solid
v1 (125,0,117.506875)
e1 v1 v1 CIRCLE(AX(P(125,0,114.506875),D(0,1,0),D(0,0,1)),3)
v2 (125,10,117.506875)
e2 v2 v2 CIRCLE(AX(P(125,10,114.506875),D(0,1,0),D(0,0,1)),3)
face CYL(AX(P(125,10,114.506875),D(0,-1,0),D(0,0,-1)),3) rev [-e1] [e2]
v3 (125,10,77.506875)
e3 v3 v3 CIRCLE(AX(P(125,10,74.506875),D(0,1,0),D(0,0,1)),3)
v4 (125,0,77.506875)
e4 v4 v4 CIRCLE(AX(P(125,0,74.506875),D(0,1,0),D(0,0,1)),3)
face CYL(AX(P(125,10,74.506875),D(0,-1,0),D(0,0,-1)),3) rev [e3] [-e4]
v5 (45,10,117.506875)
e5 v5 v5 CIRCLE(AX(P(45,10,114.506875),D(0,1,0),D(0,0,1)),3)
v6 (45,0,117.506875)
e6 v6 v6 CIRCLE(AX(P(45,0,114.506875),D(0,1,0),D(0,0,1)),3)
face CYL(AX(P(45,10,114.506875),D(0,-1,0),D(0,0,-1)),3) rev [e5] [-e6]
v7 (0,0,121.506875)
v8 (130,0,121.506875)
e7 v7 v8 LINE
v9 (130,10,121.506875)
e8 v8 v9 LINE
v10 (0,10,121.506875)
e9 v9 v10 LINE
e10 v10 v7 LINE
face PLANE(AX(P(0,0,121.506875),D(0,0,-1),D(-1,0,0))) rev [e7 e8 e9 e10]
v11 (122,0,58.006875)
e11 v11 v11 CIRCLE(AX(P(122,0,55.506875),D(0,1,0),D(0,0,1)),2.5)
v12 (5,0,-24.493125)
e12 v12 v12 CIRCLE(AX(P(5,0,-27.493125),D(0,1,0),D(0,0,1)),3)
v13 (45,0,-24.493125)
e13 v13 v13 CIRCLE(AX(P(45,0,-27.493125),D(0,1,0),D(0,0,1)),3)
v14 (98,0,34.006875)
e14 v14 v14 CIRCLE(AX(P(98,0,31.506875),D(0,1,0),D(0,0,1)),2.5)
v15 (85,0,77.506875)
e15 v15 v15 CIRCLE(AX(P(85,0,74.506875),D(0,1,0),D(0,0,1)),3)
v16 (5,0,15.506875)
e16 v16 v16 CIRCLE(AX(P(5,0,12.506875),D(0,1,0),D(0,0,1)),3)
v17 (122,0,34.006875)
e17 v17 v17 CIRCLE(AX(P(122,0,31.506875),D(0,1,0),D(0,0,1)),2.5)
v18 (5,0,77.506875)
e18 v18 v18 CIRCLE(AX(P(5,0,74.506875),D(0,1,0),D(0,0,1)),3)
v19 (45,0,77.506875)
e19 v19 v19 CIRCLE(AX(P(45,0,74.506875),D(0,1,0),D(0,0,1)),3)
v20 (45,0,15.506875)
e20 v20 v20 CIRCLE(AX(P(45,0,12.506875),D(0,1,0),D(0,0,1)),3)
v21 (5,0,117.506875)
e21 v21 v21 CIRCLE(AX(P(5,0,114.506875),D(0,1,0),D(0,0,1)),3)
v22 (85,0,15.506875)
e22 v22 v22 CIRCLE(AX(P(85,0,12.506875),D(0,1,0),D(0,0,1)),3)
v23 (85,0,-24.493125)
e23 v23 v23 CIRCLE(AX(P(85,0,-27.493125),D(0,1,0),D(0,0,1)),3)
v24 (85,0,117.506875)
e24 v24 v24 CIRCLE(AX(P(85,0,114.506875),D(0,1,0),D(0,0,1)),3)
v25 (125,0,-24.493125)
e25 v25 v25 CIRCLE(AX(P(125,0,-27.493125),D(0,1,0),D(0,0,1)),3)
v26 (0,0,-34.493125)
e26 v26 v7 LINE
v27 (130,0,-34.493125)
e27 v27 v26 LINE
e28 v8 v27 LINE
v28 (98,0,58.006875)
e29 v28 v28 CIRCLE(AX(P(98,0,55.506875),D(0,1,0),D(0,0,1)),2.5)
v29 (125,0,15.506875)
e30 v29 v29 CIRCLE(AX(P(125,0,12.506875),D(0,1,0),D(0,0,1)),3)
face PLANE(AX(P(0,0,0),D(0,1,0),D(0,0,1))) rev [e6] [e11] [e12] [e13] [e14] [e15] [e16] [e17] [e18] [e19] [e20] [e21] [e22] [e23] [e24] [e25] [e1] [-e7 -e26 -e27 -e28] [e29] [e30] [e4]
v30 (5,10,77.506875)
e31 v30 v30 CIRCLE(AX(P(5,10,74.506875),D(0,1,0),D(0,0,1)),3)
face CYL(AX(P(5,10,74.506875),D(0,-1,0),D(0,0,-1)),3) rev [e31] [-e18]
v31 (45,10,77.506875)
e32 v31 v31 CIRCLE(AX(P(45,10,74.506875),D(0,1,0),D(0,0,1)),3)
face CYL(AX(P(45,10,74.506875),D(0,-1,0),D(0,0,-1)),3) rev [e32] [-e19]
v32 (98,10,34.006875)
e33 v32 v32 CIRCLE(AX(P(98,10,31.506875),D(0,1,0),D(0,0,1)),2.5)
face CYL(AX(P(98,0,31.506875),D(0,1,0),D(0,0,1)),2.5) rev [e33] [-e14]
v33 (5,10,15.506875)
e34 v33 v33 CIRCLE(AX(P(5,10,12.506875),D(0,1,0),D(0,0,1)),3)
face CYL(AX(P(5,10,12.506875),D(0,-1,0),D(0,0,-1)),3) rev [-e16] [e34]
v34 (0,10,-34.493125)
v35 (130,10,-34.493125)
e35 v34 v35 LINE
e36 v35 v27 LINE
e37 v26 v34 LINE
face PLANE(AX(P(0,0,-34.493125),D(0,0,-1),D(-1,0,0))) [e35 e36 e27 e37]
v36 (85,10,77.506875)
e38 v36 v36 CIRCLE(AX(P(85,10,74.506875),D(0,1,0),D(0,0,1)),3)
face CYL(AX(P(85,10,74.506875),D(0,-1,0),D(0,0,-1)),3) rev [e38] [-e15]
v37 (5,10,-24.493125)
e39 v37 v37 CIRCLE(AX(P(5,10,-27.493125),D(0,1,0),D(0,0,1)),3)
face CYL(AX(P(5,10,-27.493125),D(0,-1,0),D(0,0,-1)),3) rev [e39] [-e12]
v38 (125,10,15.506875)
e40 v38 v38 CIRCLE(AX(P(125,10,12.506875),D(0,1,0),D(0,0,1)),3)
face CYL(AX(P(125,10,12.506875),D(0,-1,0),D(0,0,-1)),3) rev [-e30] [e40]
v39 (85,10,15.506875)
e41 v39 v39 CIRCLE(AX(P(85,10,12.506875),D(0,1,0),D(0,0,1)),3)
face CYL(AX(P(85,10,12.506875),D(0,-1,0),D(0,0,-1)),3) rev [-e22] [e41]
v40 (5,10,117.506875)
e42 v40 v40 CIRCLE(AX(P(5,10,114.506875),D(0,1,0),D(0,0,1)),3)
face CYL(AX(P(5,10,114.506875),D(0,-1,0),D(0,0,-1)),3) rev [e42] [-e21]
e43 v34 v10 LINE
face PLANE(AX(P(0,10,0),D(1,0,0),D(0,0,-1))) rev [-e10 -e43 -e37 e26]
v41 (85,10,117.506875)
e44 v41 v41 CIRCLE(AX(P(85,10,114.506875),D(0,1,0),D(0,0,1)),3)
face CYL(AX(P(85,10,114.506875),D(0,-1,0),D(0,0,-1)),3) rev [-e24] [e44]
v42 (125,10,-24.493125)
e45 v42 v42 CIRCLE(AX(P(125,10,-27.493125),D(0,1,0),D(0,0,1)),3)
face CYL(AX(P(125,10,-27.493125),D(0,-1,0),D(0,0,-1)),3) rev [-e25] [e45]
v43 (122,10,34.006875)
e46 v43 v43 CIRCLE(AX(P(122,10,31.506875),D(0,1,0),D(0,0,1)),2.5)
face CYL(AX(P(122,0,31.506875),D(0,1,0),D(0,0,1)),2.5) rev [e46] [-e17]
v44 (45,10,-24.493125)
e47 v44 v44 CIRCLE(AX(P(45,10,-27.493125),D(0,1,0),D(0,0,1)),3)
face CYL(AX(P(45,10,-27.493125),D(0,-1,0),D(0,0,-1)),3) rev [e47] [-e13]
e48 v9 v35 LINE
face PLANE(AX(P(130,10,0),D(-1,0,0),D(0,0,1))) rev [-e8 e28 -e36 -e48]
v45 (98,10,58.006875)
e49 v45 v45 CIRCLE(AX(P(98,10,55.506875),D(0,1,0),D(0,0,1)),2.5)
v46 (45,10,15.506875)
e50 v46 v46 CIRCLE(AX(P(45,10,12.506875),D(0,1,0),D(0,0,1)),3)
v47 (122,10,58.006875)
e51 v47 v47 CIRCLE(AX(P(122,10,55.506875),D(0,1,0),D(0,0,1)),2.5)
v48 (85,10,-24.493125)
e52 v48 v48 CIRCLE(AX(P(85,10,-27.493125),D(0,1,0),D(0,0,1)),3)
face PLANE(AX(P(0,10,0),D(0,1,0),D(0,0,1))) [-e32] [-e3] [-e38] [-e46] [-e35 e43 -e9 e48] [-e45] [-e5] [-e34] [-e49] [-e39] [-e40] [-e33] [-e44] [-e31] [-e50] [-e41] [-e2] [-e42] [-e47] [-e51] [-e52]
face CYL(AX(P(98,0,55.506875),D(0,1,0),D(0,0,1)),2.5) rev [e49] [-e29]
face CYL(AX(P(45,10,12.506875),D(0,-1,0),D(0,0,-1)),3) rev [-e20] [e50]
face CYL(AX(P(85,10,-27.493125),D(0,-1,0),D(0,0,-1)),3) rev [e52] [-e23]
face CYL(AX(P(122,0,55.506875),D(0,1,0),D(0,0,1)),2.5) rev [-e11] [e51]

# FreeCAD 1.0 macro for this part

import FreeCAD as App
import Part
import Sketcher

V = App.Vector


def add_polygon(sketch, points):
    """Adds a closed chain of lines whose ends are joined by coincident constraints."""
    first, n = sketch.GeometryCount, len(points)
    for a, b in zip(points, points[1:] + points[:1]):
        sketch.addGeometry(Part.LineSegment(App.Vector(*a, 0), App.Vector(*b, 0)), False)
    for i in range(n):
        sketch.addConstraint(Sketcher.Constraint("Coincident", first + i, 2, first + (i + 1) % n, 1))

doc = App.newDocument("Part")
body = doc.addObject("PartDesign::Body", "Body")

sketch1 = doc.addObject("Sketcher::SketchObject", "Sketch")
body.addObject(sketch1)
sketch1.AttachmentSupport = (doc.XZ_Plane, [""])
sketch1.MapMode = "FlatFace"
add_polygon(sketch1, [(0, -34.5), (0, 121.5), (130, 121.5), (130, -34.5)])
sketch1.addGeometry(Part.Circle(V(5, 114.5, 0), V(0, 0, 1), 3), False)
sketch1.addGeometry(Part.Circle(V(45, 114.5, 0), V(0, 0, 1), 3), False)
sketch1.addGeometry(Part.Circle(V(5, 74.5, 0), V(0, 0, 1), 3), False)
sketch1.addGeometry(Part.Circle(V(45, 74.5, 0), V(0, 0, 1), 3), False)
sketch1.addGeometry(Part.Circle(V(85, 114.5, 0), V(0, 0, 1), 3), False)
sketch1.addGeometry(Part.Circle(V(125, 114.5, 0), V(0, 0, 1), 3), False)
sketch1.addGeometry(Part.Circle(V(85, 74.5, 0), V(0, 0, 1), 3), False)
sketch1.addGeometry(Part.Circle(V(125, 74.5, 0), V(0, 0, 1), 3), False)
sketch1.addGeometry(Part.Circle(V(5, 12.5, 0), V(0, 0, 1), 3), False)
sketch1.addGeometry(Part.Circle(V(45, 12.5, 0), V(0, 0, 1), 3), False)
sketch1.addGeometry(Part.Circle(V(5, -27.5, 0), V(0, 0, 1), 3), False)
sketch1.addGeometry(Part.Circle(V(45, -27.5, 0), V(0, 0, 1), 3), False)
sketch1.addGeometry(Part.Circle(V(85, 12.5, 0), V(0, 0, 1), 3), False)
sketch1.addGeometry(Part.Circle(V(125, 12.5, 0), V(0, 0, 1), 3), False)
sketch1.addGeometry(Part.Circle(V(85, -27.5, 0), V(0, 0, 1), 3), False)
sketch1.addGeometry(Part.Circle(V(125, -27.5, 0), V(0, 0, 1), 3), False)
sketch1.addConstraint([
    Sketcher.Constraint("Vertical", 0),
    Sketcher.Constraint("Horizontal", 1),
    Sketcher.Constraint("Vertical", 2),
    Sketcher.Constraint("Horizontal", 3),
    Sketcher.Constraint("Equal", 4, 5),
    Sketcher.Constraint("Equal", 5, 6),
    Sketcher.Constraint("Equal", 6, 7),
    Sketcher.Constraint("Equal", 7, 8),
    Sketcher.Constraint("Equal", 8, 9),
    Sketcher.Constraint("Equal", 9, 10),
    Sketcher.Constraint("Equal", 10, 11),
    Sketcher.Constraint("Equal", 11, 12),
    Sketcher.Constraint("Equal", 12, 13),
    Sketcher.Constraint("Equal", 13, 14),
    Sketcher.Constraint("Equal", 14, 15),
    Sketcher.Constraint("Equal", 15, 16),
    Sketcher.Constraint("Equal", 16, 17),
    Sketcher.Constraint("Equal", 17, 18),
    Sketcher.Constraint("Equal", 18, 19),
    Sketcher.Constraint("PointOnObject", 0, 2, -2),
    Sketcher.Constraint("Horizontal", 4, 3, 5, 3),
    Sketcher.Constraint("Horizontal", 6, 3, 7, 3),
    Sketcher.Constraint("Horizontal", 5, 3, 8, 3),
    Sketcher.Constraint("Horizontal", 8, 3, 9, 3),
    Sketcher.Constraint("Horizontal", 7, 3, 10, 3),
    Sketcher.Constraint("Horizontal", 10, 3, 11, 3),
    Sketcher.Constraint("Horizontal", 12, 3, 13, 3),
    Sketcher.Constraint("Horizontal", 14, 3, 15, 3),
    Sketcher.Constraint("Horizontal", 13, 3, 16, 3),
    Sketcher.Constraint("Horizontal", 16, 3, 17, 3),
    Sketcher.Constraint("Horizontal", 15, 3, 18, 3),
    Sketcher.Constraint("Horizontal", 18, 3, 19, 3),
    Sketcher.Constraint("Vertical", 4, 3, 6, 3),
    Sketcher.Constraint("Vertical", 5, 3, 7, 3),
    Sketcher.Constraint("Vertical", 8, 3, 10, 3),
    Sketcher.Constraint("Vertical", 9, 3, 11, 3),
    Sketcher.Constraint("Vertical", 6, 3, 12, 3),
    Sketcher.Constraint("Vertical", 7, 3, 13, 3),
    Sketcher.Constraint("Vertical", 12, 3, 14, 3),
    Sketcher.Constraint("Vertical", 13, 3, 15, 3),
    Sketcher.Constraint("Vertical", 10, 3, 16, 3),
    Sketcher.Constraint("Vertical", 11, 3, 17, 3),
    Sketcher.Constraint("Vertical", 16, 3, 18, 3),
    Sketcher.Constraint("Vertical", 17, 3, 19, 3),
    Sketcher.Constraint("Diameter", 4, 6.0),
    Sketcher.Constraint("DistanceX", 1, 1, 1, 2, 130.0),
    Sketcher.Constraint("DistanceY", 0, 1, 0, 2, 156.0),
    Sketcher.Constraint("DistanceX", -1, 1, 4, 3, 5.0),
    Sketcher.Constraint("DistanceX", -1, 1, 5, 3, 45.0),
    Sketcher.Constraint("DistanceX", -1, 1, 8, 3, 85.0),
    Sketcher.Constraint("DistanceX", -1, 1, 9, 3, 125.0),
    Sketcher.Constraint("DistanceY", 6, 3, 4, 3, 40.0),
    Sketcher.Constraint("DistanceY", 12, 3, 6, 3, 62.0),
    Sketcher.Constraint("DistanceY", 14, 3, 12, 3, 40.0),
    Sketcher.Constraint("DistanceY", 4, 3, 0, 2, 7.0),
    Sketcher.Constraint("DistanceY", -1, 1, 4, 3, 114.506875),
])
pad1 = doc.addObject("PartDesign::Pad", "Pad")
body.addObject(pad1)
pad1.Profile = sketch1
pad1.Length = 10
pad1.Reversed = True

sketch2 = doc.addObject("Sketcher::SketchObject", "Sketch001")
body.addObject(sketch2)
sketch2.AttachmentSupport = (doc.XZ_Plane, [""])
sketch2.MapMode = "FlatFace"
sketch2.AttachmentOffset = App.Placement(V(0, 0, -10), App.Rotation())
sketch2.addGeometry([
    Part.Circle(V(98, 31.5, 0), V(0, 0, 1), 2.5),
    Part.Circle(V(98, 55.5, 0), V(0, 0, 1), 2.5),
    Part.Circle(V(122, 55.5, 0), V(0, 0, 1), 2.5),
    Part.Circle(V(122, 31.5, 0), V(0, 0, 1), 2.5),
], False)
sketch2.addConstraint([
    Sketcher.Constraint("Equal", 0, 1),
    Sketcher.Constraint("Equal", 1, 2),
    Sketcher.Constraint("Equal", 2, 3),
    Sketcher.Constraint("Horizontal", 1, 3, 2, 3),
    Sketcher.Constraint("Horizontal", 0, 3, 3, 3),
    Sketcher.Constraint("Vertical", 0, 3, 1, 3),
    Sketcher.Constraint("Vertical", 2, 3, 3, 3),
    Sketcher.Constraint("Diameter", 0, 5.0),
    Sketcher.Constraint("DistanceX", -1, 1, 0, 3, 98.0),
    Sketcher.Constraint("DistanceX", -1, 1, 2, 3, 122.0),
    Sketcher.Constraint("DistanceY", 0, 3, 1, 3, 24.0),
    Sketcher.Constraint("DistanceY", -1, 1, 0, 3, 31.506875),
])
pocket1 = doc.addObject("PartDesign::Pocket", "Pocket")
body.addObject(pocket1)
pocket1.Profile = sketch2
pocket1.Length = 10
pocket1.Reversed = True

sketch3 = doc.addObject("Sketcher::SketchObject", "Sketch002")
body.addObject(sketch3)
sketch3.AttachmentSupport = (doc.XY_Plane, [""])
sketch3.MapMode = "FlatFace"
sketch3.AttachmentOffset = App.Placement(V(0, 0, -34.493125), App.Rotation())
add_polygon(sketch3, [(130, 10), (130, 0), (0, 0), (0, 10)])
sketch3.addConstraint([
    Sketcher.Constraint("Vertical", 0),
    Sketcher.Constraint("Horizontal", 1),
    Sketcher.Constraint("Vertical", 2),
    Sketcher.Constraint("Horizontal", 3),
    Sketcher.Constraint("Coincident", 1, 2, -1, 1),
    Sketcher.Constraint("DistanceX", 1, 2, 1, 1, 130.0),
    Sketcher.Constraint("DistanceY", 0, 2, 0, 1, 10.0),
])
pad2 = doc.addObject("PartDesign::Pad", "Pad001")
body.addObject(pad2)
pad2.Profile = sketch3
pad2.Length = 10
pad2.Reversed = True

sketch4 = doc.addObject("Sketcher::SketchObject", "Sketch003")
body.addObject(sketch4)
sketch4.AttachmentSupport = (doc.XY_Plane, [""])
sketch4.MapMode = "FlatFace"
sketch4.AttachmentOffset = App.Placement(V(0, 0, 121.506875), App.Rotation())
add_polygon(sketch4, [(0, 10), (0, 0), (130, 0), (130, 10)])
sketch4.addConstraint([
    Sketcher.Constraint("Vertical", 0),
    Sketcher.Constraint("Horizontal", 1),
    Sketcher.Constraint("Vertical", 2),
    Sketcher.Constraint("Horizontal", 3),
    Sketcher.Constraint("Coincident", 0, 2, -1, 1),
    Sketcher.Constraint("DistanceX", 1, 1, 1, 2, 130.0),
    Sketcher.Constraint("DistanceY", 0, 2, 0, 1, 10.0),
])
pad3 = doc.addObject("PartDesign::Pad", "Pad002")
body.addObject(pad3)
pad3.Profile = sketch4
pad3.Length = 10

sketch5 = doc.addObject("Sketcher::SketchObject", "Sketch004")
body.addObject(sketch5)
sketch5.AttachmentSupport = (doc.XY_Plane, [""])
sketch5.MapMode = "FlatFace"
sketch5.AttachmentOffset = App.Placement(V(0, 0, 131.506875), App.Rotation())
add_polygon(sketch5, [(0, 10), (0, 0), (130, 0), (130, 10)])
sketch5.addConstraint([
    Sketcher.Constraint("Vertical", 0),
    Sketcher.Constraint("Horizontal", 1),
    Sketcher.Constraint("Vertical", 2),
    Sketcher.Constraint("Horizontal", 3),
    Sketcher.Constraint("Coincident", 0, 2, -1, 1),
    Sketcher.Constraint("DistanceX", 1, 1, 1, 2, 130.0),
    Sketcher.Constraint("DistanceY", 0, 2, 0, 1, 10.0),
])
pocket2 = doc.addObject("PartDesign::Pocket", "Pocket001")
body.addObject(pocket2)
pocket2.Profile = sketch5
pocket2.Length = 12.25

sketch6 = doc.addObject("Sketcher::SketchObject", "Sketch005")
body.addObject(sketch6)
sketch6.AttachmentSupport = (doc.XZ_Plane, [""])
sketch6.MapMode = "FlatFace"
sketch6.AttachmentOffset = App.Placement(V(0, 0, -10), App.Rotation())
add_polygon(sketch6, [(0, -44), (0, -32), (130, -32), (130, -44)])
sketch6.addConstraint([
    Sketcher.Constraint("Vertical", 0),
    Sketcher.Constraint("Horizontal", 1),
    Sketcher.Constraint("Vertical", 2),
    Sketcher.Constraint("Horizontal", 3),
    Sketcher.Constraint("PointOnObject", 0, 2, -2),
    Sketcher.Constraint("DistanceX", 1, 1, 1, 2, 130.0),
    Sketcher.Constraint("DistanceY", 0, 1, 0, 2, 12.25),
    Sketcher.Constraint("DistanceY", 0, 2, -1, 1, 32.243125),
])
pocket3 = doc.addObject("PartDesign::Pocket", "Pocket002")
body.addObject(pocket3)
pocket3.Profile = sketch6
pocket3.Length = 20
pocket3.Reversed = True

sketch7 = doc.addObject("Sketcher::SketchObject", "Sketch006")
body.addObject(sketch7)
sketch7.AttachmentSupport = (doc.XY_Plane, [""])
sketch7.MapMode = "FlatFace"
sketch7.AttachmentOffset = App.Placement(V(0, 0, -32.243125), App.Rotation())
add_polygon(sketch7, [(130, 10), (130, 0), (0, 0), (0, 10)])
sketch7.addConstraint([
    Sketcher.Constraint("Vertical", 0),
    Sketcher.Constraint("Horizontal", 1),
    Sketcher.Constraint("Vertical", 2),
    Sketcher.Constraint("Horizontal", 3),
    Sketcher.Constraint("Coincident", 1, 2, -1, 1),
    Sketcher.Constraint("DistanceX", 1, 2, 1, 1, 130.0),
    Sketcher.Constraint("DistanceY", 0, 2, 0, 1, 10.0),
])
pad4 = doc.addObject("PartDesign::Pad", "Pad003")
body.addObject(pad4)
pad4.Profile = sketch7
pad4.Length = 2.25
pad4.Reversed = True

sketch8 = doc.addObject("Sketcher::SketchObject", "Sketch007")
body.addObject(sketch8)
sketch8.AttachmentSupport = (doc.XY_Plane, [""])
sketch8.MapMode = "FlatFace"
sketch8.AttachmentOffset = App.Placement(V(0, 0, 119.256875), App.Rotation())
add_polygon(sketch8, [(0, 10), (0, 0), (130, 0), (130, 10)])
sketch8.addConstraint([
    Sketcher.Constraint("Vertical", 0),
    Sketcher.Constraint("Horizontal", 1),
    Sketcher.Constraint("Vertical", 2),
    Sketcher.Constraint("Horizontal", 3),
    Sketcher.Constraint("Coincident", 0, 2, -1, 1),
    Sketcher.Constraint("DistanceX", 1, 1, 1, 2, 130.0),
    Sketcher.Constraint("DistanceY", 0, 2, 0, 1, 10.0),
])
pad5 = doc.addObject("PartDesign::Pad", "Pad004")
body.addObject(pad5)
pad5.Profile = sketch8
pad5.Length = 2.25

sketch9 = doc.addObject("Sketcher::SketchObject", "Sketch008")
body.addObject(sketch9)
sketch9.AttachmentSupport = (doc.XY_Plane, [""])
sketch9.MapMode = "FlatFace"
sketch9.AttachmentOffset = App.Placement(V(0, 0, 121.506875), App.Rotation())
add_polygon(sketch9, [(0, 10), (0, 0), (130, 0), (130, 10)])
sketch9.addConstraint([
    Sketcher.Constraint("Vertical", 0),
    Sketcher.Constraint("Horizontal", 1),
    Sketcher.Constraint("Vertical", 2),
    Sketcher.Constraint("Horizontal", 3),
    Sketcher.Constraint("Coincident", 0, 2, -1, 1),
    Sketcher.Constraint("DistanceX", 1, 1, 1, 2, 130.0),
    Sketcher.Constraint("DistanceY", 0, 2, 0, 1, 10.0),
])
pad6 = doc.addObject("PartDesign::Pad", "Pad005")
body.addObject(pad6)
pad6.Profile = sketch9
pad6.Length = 10

sketch10 = doc.addObject("Sketcher::SketchObject", "Sketch009")
body.addObject(sketch10)
sketch10.AttachmentSupport = (doc.XY_Plane, [""])
sketch10.MapMode = "FlatFace"
sketch10.AttachmentOffset = App.Placement(V(0, 0, -34.493125), App.Rotation())
add_polygon(sketch10, [(130, 10), (130, 0), (0, 0), (0, 10)])
sketch10.addConstraint([
    Sketcher.Constraint("Vertical", 0),
    Sketcher.Constraint("Horizontal", 1),
    Sketcher.Constraint("Vertical", 2),
    Sketcher.Constraint("Horizontal", 3),
    Sketcher.Constraint("Coincident", 1, 2, -1, 1),
    Sketcher.Constraint("DistanceX", 1, 2, 1, 1, 130.0),
    Sketcher.Constraint("DistanceY", 0, 2, 0, 1, 10.0),
])
pad7 = doc.addObject("PartDesign::Pad", "Pad006")
body.addObject(pad7)
pad7.Profile = sketch10
pad7.Length = 7
pad7.Reversed = True

sketch11 = doc.addObject("Sketcher::SketchObject", "Sketch010")
body.addObject(sketch11)
sketch11.AttachmentSupport = (doc.XY_Plane, [""])
sketch11.MapMode = "FlatFace"
sketch11.AttachmentOffset = App.Placement(V(0, 0, -41.493125), App.Rotation())
add_polygon(sketch11, [(130, 10), (130, 0), (0, 0), (0, 10)])
sketch11.addConstraint([
    Sketcher.Constraint("Vertical", 0),
    Sketcher.Constraint("Horizontal", 1),
    Sketcher.Constraint("Vertical", 2),
    Sketcher.Constraint("Horizontal", 3),
    Sketcher.Constraint("Coincident", 1, 2, -1, 1),
    Sketcher.Constraint("DistanceX", 1, 2, 1, 1, 130.0),
    Sketcher.Constraint("DistanceY", 0, 2, 0, 1, 10.0),
])
pocket4 = doc.addObject("PartDesign::Pocket", "Pocket003")
body.addObject(pocket4)
pocket4.Profile = sketch11
pocket4.Length = 7
pocket4.Reversed = True

sketch12 = doc.addObject("Sketcher::SketchObject", "Sketch011")
body.addObject(sketch12)
sketch12.AttachmentSupport = (doc.XY_Plane, [""])
sketch12.MapMode = "FlatFace"
sketch12.AttachmentOffset = App.Placement(V(0, 0, 131.506875), App.Rotation())
add_polygon(sketch12, [(0, 10), (0, 0), (130, 0), (130, 10)])
sketch12.addConstraint([
    Sketcher.Constraint("Vertical", 0),
    Sketcher.Constraint("Horizontal", 1),
    Sketcher.Constraint("Vertical", 2),
    Sketcher.Constraint("Horizontal", 3),
    Sketcher.Constraint("Coincident", 0, 2, -1, 1),
    Sketcher.Constraint("DistanceX", 1, 1, 1, 2, 130.0),
    Sketcher.Constraint("DistanceY", 0, 2, 0, 1, 10.0),
])
pocket5 = doc.addObject("PartDesign::Pocket", "Pocket004")
body.addObject(pocket5)
pocket5.Profile = sketch12
pocket5.Length = 10

doc.recompute()
